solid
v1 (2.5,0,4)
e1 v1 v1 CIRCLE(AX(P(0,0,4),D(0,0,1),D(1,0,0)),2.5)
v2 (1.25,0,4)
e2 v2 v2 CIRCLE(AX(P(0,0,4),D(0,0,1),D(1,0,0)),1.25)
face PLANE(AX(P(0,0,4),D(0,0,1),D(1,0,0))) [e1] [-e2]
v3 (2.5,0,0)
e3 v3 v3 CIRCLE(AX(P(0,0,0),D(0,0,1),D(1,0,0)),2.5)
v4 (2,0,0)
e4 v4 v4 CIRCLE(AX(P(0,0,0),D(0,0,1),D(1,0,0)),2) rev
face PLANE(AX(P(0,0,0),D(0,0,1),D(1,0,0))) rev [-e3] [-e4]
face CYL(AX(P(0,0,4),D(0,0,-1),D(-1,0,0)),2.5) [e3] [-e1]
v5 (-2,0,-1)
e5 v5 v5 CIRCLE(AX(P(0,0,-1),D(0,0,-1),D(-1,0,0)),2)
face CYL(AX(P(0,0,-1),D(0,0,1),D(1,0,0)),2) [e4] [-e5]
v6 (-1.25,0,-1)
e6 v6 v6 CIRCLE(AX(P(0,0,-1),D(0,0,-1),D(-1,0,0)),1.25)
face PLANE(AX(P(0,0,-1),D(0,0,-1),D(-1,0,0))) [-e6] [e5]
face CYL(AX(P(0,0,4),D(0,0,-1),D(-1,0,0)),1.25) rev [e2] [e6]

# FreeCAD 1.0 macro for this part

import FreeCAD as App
import Part
import Sketcher

V = App.Vector
Q = App.Units.Quantity

doc = App.newDocument("Part")
params = doc.addObject("Spreadsheet::Sheet", "Params")
for row, (alias, value) in enumerate([
    ("sketch1_diameter", "5 mm"),
    ("sketch1_diameter2", "2.5 mm"),
    ("pad1_length", "4 mm"),
    ("sketch2_diameter", "4 mm"),
    ("sketch2_diameter2", "2.5 mm"),
    ("pad2_length", "1 mm"),
], start=1):
    params.set(f"A{row}", alias)
    params.set(f"B{row}", "=" + value)
    params.setAlias(f"B{row}", alias)

body = doc.addObject("PartDesign::Body", "Body")

# Sketch on XY plane
sketch1 = doc.addObject("Sketcher::SketchObject", "Sketch")
body.addObject(sketch1)
sketch1.AttachmentSupport = (doc.XY_Plane, [""])
sketch1.MapMode = "FlatFace"
sketch1.addGeometry([
    Part.Circle(V(0, 0, 0), V(0, 0, 1), 2.5),
    Part.Circle(V(0, 0, 0), V(0, 0, 1), 1.2),
], False)
sketch1.addConstraint([
    Sketcher.Constraint("Coincident", 0, 3, -1, 1),
    Sketcher.Constraint("Coincident", 1, 3, -1, 1),
    Sketcher.Constraint("Diameter", 0, Q("5 mm")),
    Sketcher.Constraint("Diameter", 1, Q("2.5 mm")),
])
sketch1.setExpression("Constraints[2]", "Params.sketch1_diameter")
sketch1.setExpression("Constraints[3]", "Params.sketch1_diameter2")
pad1 = doc.addObject("PartDesign::Pad", "Pad")
body.addObject(pad1)
pad1.Profile = sketch1
pad1.setExpression("Length", "Params.pad1_length")

# Sketch on XY plane
sketch2 = doc.addObject("Sketcher::SketchObject", "Sketch001")
body.addObject(sketch2)
sketch2.AttachmentSupport = (doc.XY_Plane, [""])
sketch2.MapMode = "FlatFace"
sketch2.AttachmentOffset = App.Placement(V(0, 0, -1), App.Rotation())
sketch2.addGeometry([
    Part.Circle(V(0, 0, 0), V(0, 0, 1), 2),
    Part.Circle(V(0, 0, 0), V(0, 0, 1), 1.2),
], False)
sketch2.addConstraint([
    Sketcher.Constraint("Coincident", 0, 3, -1, 1),
    Sketcher.Constraint("Coincident", 1, 3, -1, 1),
    Sketcher.Constraint("Diameter", 0, Q("4 mm")),
    Sketcher.Constraint("Diameter", 1, Q("2.5 mm")),
])
sketch2.setExpression("Constraints[2]", "Params.sketch2_diameter")
sketch2.setExpression("Constraints[3]", "Params.sketch2_diameter2")
pad2 = doc.addObject("PartDesign::Pad", "Pad001")
body.addObject(pad2)
pad2.Profile = sketch2
pad2.setExpression("Length", "Params.pad2_length")

doc.recompute()
